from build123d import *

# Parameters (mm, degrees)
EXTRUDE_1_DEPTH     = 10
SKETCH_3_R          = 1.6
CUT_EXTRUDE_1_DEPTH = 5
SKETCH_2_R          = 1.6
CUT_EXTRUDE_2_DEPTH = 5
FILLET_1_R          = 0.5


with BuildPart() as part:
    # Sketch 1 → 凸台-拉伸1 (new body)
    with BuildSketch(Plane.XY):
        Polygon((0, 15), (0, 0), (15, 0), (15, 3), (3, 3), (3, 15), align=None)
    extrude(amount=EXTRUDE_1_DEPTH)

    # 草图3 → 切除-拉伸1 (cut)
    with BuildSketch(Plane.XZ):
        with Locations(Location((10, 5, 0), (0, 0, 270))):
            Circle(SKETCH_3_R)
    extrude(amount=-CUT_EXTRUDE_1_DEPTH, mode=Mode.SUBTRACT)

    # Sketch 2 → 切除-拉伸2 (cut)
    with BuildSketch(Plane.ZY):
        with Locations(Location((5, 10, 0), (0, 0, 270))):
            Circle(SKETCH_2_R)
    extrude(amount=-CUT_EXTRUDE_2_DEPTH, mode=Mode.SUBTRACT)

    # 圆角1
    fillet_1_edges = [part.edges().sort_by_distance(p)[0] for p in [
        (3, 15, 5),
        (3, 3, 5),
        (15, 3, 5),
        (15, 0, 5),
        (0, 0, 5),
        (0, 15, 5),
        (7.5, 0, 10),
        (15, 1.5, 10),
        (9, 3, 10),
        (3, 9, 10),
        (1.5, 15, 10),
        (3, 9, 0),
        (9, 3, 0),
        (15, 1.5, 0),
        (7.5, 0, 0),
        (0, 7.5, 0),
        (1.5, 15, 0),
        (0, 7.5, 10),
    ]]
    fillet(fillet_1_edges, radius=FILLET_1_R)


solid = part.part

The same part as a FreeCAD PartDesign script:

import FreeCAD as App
import Part
import Sketcher


def edges_at(feature, points):
    """Names of the edges that pass closest to the given points."""
    edges = feature.Shape.Edges
    near = lambda p: min(range(len(edges)), key=lambda i: edges[i].distToShape(Part.Vertex(*p))[0])
    return sorted({f"Edge{near(p) + 1}" for p in points})

doc = App.newDocument("Part")
body = doc.addObject("PartDesign::Body", "Body")

sketch1 = body.newObject("Sketcher::SketchObject", "Sketch")
sketch1.AttachmentSupport = (doc.getObject("XY_Plane"), [""])
sketch1.MapMode = "FlatFace"
sketch1.addGeometry([
    Part.LineSegment(App.Vector(0, 15, 0), App.Vector(0, 0, 0)),
    Part.LineSegment(App.Vector(0, 0, 0), App.Vector(15, 0, 0)),
    Part.LineSegment(App.Vector(15, 0, 0), App.Vector(15, 3, 0)),
    Part.LineSegment(App.Vector(15, 3, 0), App.Vector(3, 3, 0)),
    Part.LineSegment(App.Vector(3, 3, 0), App.Vector(3, 15, 0)),
    Part.LineSegment(App.Vector(3, 15, 0), App.Vector(0, 15, 0)),
], False)
sketch1.addConstraint([
    Sketcher.Constraint("Coincident", 0, 2, 1, 1),
    Sketcher.Constraint("Coincident", 1, 2, 2, 1),
    Sketcher.Constraint("Coincident", 2, 2, 3, 1),
    Sketcher.Constraint("Coincident", 3, 2, 4, 1),
    Sketcher.Constraint("Coincident", 4, 2, 5, 1),
    Sketcher.Constraint("Coincident", 5, 2, 0, 1),
    Sketcher.Constraint("Vertical", 0),
    Sketcher.Constraint("Horizontal", 1),
    Sketcher.Constraint("Vertical", 2),
    Sketcher.Constraint("Horizontal", 3),
    Sketcher.Constraint("Vertical", 4),
    Sketcher.Constraint("Horizontal", 5),
    Sketcher.Constraint("Coincident", 0, 2, -1, 1),
    Sketcher.Constraint("Equal", 1, 0),
    Sketcher.Constraint("Equal", 5, 2),
    Sketcher.Constraint("DistanceX", 1, 1, 1, 2, 15.0),
    Sketcher.Constraint("DistanceX", 3, 2, 3, 1, 12.0),
])
pad1 = body.newObject("PartDesign::Pad", "Pad")
pad1.Profile = sketch1
pad1.Length = 10

sketch2 = body.newObject("Sketcher::SketchObject", "Sketch001")
sketch2.AttachmentSupport = (doc.getObject("XZ_Plane"), [""])
sketch2.MapMode = "FlatFace"
sketch2.addGeometry(Part.Circle(App.Vector(10, 5, 0), App.Vector(0, 0, 1), 1.6), False)
sketch2.addConstraint([
    Sketcher.Constraint("Diameter", 0, 3.2),
    Sketcher.Constraint("DistanceX", -1, 1, 0, 3, 10.0),
    Sketcher.Constraint("DistanceY", -1, 1, 0, 3, 5.0),
])
pocket1 = body.newObject("PartDesign::Pocket", "Pocket")
pocket1.Profile = sketch2
pocket1.Length = 5

sketch3 = body.newObject("Sketcher::SketchObject", "Sketch002")
sketch3.AttachmentSupport = (doc.getObject("YZ_Plane"), [""])
sketch3.MapMode = "FlatFace"
sketch3.addGeometry(Part.Circle(App.Vector(10, 5, 0), App.Vector(0, 0, 1), 1.6), False)
sketch3.addConstraint([
    Sketcher.Constraint("Diameter", 0, 3.2),
    Sketcher.Constraint("DistanceX", -1, 1, 0, 3, 10.0),
    Sketcher.Constraint("DistanceY", -1, 1, 0, 3, 5.0),
])
pocket2 = body.newObject("PartDesign::Pocket", "Pocket001")
pocket2.Profile = sketch3
pocket2.Length = 5
pocket2.Reversed = True
doc.recompute()

fillet = body.newObject("PartDesign::Fillet", "Fillet")
fillet.Base = (pocket2, edges_at(pocket2, [
    (3, 15, 5),
    (3, 3, 5),
    (15, 3, 5),
    (15, 0, 5),
    (0, 0, 5),
    (0, 15, 5),
    (7.5, 0, 10),
    (15, 1.5, 10),
    (9, 3, 10),
    (3, 9, 10),
    (1.5, 15, 10),
    (3, 9, 0),
    (9, 3, 0),
    (15, 1.5, 0),
    (7.5, 0, 0),
    (0, 7.5, 0),
    (1.5, 15, 0),
    (0, 7.5, 10),
]))
fillet.Radius = 0.5

doc.recompute()
